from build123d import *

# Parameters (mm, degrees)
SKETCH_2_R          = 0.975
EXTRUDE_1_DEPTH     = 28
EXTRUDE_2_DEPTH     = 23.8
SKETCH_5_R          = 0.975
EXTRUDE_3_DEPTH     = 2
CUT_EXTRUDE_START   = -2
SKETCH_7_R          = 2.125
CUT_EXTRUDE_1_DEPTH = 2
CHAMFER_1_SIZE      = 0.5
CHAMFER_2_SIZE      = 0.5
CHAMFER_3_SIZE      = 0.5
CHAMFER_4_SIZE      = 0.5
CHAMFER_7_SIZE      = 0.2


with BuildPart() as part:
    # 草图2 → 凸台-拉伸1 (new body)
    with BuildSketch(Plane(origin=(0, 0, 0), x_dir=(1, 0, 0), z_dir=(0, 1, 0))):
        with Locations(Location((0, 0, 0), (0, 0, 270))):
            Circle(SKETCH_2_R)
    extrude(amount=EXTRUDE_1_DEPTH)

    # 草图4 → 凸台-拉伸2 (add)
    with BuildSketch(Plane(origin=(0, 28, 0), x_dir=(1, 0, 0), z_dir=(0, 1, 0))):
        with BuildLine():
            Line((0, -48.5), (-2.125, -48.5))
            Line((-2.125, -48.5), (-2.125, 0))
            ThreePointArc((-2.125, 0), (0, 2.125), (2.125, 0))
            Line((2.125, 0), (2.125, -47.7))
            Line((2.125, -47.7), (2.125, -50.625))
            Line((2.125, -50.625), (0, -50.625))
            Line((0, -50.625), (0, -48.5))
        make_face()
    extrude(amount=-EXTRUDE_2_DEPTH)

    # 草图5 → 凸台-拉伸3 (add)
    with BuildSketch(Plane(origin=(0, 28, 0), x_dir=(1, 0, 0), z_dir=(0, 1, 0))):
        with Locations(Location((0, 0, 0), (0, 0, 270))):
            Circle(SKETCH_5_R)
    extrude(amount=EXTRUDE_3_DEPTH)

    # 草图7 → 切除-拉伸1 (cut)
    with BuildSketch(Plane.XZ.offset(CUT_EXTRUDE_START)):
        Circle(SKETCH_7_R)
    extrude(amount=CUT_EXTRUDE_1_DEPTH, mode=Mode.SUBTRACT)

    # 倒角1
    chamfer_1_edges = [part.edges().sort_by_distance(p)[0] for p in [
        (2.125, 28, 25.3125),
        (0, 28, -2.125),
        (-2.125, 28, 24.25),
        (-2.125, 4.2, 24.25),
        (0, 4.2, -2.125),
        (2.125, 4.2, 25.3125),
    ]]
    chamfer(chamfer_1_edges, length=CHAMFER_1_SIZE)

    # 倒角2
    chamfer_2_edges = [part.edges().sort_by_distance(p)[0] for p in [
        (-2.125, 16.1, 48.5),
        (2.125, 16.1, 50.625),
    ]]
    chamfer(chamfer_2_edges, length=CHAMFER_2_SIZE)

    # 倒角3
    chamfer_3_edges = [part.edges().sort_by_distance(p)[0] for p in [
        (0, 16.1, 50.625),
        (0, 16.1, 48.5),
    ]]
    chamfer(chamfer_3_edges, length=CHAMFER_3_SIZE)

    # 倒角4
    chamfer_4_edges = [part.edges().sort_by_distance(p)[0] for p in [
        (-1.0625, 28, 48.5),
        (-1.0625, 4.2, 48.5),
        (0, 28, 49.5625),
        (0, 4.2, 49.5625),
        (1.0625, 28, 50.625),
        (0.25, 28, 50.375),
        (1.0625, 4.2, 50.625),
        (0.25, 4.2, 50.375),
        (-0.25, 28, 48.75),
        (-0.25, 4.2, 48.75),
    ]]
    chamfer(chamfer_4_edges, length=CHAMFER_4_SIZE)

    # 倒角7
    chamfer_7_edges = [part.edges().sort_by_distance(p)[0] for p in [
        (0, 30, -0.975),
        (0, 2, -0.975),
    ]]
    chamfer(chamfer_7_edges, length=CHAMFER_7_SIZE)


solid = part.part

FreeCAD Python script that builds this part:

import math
import FreeCAD as App
import Part
import Sketcher
Q = App.Units.Quantity


def edges_at(feature, points):
    """Names of the edges that pass closest to the given points."""
    edges = feature.Shape.Edges
    near = lambda p: min(range(len(edges)), key=lambda i: edges[i].distToShape(Part.Vertex(*p))[0])
    return sorted({f"Edge{near(p) + 1}" for p in points})

doc = App.newDocument("Part")
params = doc.addObject("Spreadsheet::Sheet", "Params")
for row, (alias, value) in enumerate([
    ("sketch1_diameter", "1.95 mm"),
    ("pad1_length", "28 mm"),
    ("sketch2_height", "48.5 mm"),
    ("pad2_length", "23.8 mm"),
    ("sketch3_diameter", "1.95 mm"),
    ("pad3_length", "2 mm"),
    ("sketch4_diameter", "4.25 mm"),
    ("pocket1_length", "2 mm"),
    ("chamfer_size", "0.5 mm"),
    ("chamfer2_size", "0.5 mm"),
    ("chamfer3_size", "0.5 mm"),
    ("chamfer4_size", "0.5 mm"),
    ("chamfer5_size", "0.2 mm"),
], start=1):
    params.set(f"A{row}", alias)
    params.set(f"B{row}", "=" + value)
    params.setAlias(f"B{row}", alias)

body = doc.addObject("PartDesign::Body", "Body")

# Sketch on XZ plane
sketch1 = body.newObject("Sketcher::SketchObject", "Sketch")
sketch1.AttachmentSupport = (doc.getObject("XZ_Plane"), [""])
sketch1.MapMode = "FlatFace"
sketch1.addGeometry(Part.Circle(App.Vector(0, 0, 0), App.Vector(0, 0, 1), 1), False)
sketch1.addConstraint([
    Sketcher.Constraint("Coincident", 0, 3, -1, 1),
    Sketcher.Constraint("Diameter", 0, Q("1.95 mm")),
])
sketch1.setExpression("Constraints[1]", "Params.sketch1_diameter")
pad1 = body.newObject("PartDesign::Pad", "Pad")
pad1.Profile = sketch1
pad1.setExpression("Length", "Params.pad1_length")
pad1.Reversed = True

# Sketch on XZ plane
sketch2 = body.newObject("Sketcher::SketchObject", "Sketch001")
sketch2.AttachmentSupport = (doc.getObject("XZ_Plane"), [""])
sketch2.MapMode = "FlatFace"
sketch2.AttachmentOffset = App.Placement(App.Vector(0, 0, -28), App.Rotation())
sketch2.addGeometry([
    Part.LineSegment(App.Vector(-2.1, 48.5, 0), App.Vector(0, 48.5, 0)),  # 0
    Part.LineSegment(App.Vector(0, 48.5, 0), App.Vector(0, 50.6, 0)),  # 1
    Part.LineSegment(App.Vector(0, 50.6, 0), App.Vector(2.1, 50.6, 0)),  # 2
    Part.LineSegment(App.Vector(2.1, 50.6, 0), App.Vector(2.1, 0, 0)),  # 3
    Part.ArcOfCircle(Part.Circle(App.Vector(0, 0, 0), App.Vector(0, 0, 1), 2.1), math.radians(180), math.radians(360)),  # 4
    Part.LineSegment(App.Vector(-2.1, 0, 0), App.Vector(-2.1, 48.5, 0)),  # 5
], False)
sketch2.addConstraint([
    Sketcher.Constraint("Coincident", 0, 2, 1, 1),
    Sketcher.Constraint("Coincident", 1, 2, 2, 1),
    Sketcher.Constraint("Coincident", 2, 2, 3, 1),
    Sketcher.Constraint("Tangent", 3, 2, 4, 2),
    Sketcher.Constraint("Tangent", 4, 1, 5, 1),
    Sketcher.Constraint("Coincident", 5, 2, 0, 1),
    Sketcher.Constraint("Horizontal", 0),
    Sketcher.Constraint("Vertical", 1),
    Sketcher.Constraint("Horizontal", 2),
    Sketcher.Constraint("Vertical", 3),
    Sketcher.Constraint("Vertical", 5),
    Sketcher.Constraint("Coincident", 4, 3, -1, 1),
    Sketcher.Constraint("PointOnObject", 0, 2, -2),
    Sketcher.Constraint("Equal", 2, 1),
    Sketcher.Constraint("DistanceY", 5, 1, 5, 2, Q("48.5 mm")),
    Sketcher.Constraint("Radius", 4, Q("2.125 mm")),
])
sketch2.setExpression("Constraints[14]", "Params.sketch2_height")
pad2 = body.newObject("PartDesign::Pad", "Pad001")
pad2.Profile = sketch2
pad2.setExpression("Length", "Params.pad2_length")

# Sketch on XZ plane
sketch3 = body.newObject("Sketcher::SketchObject", "Sketch002")
sketch3.AttachmentSupport = (doc.getObject("XZ_Plane"), [""])
sketch3.MapMode = "FlatFace"
sketch3.AttachmentOffset = App.Placement(App.Vector(0, 0, -28), App.Rotation())
sketch3.addGeometry(Part.Circle(App.Vector(0, 0, 0), App.Vector(0, 0, 1), 1), False)
sketch3.addConstraint([
    Sketcher.Constraint("Coincident", 0, 3, -1, 1),
    Sketcher.Constraint("Diameter", 0, Q("1.95 mm")),
])
sketch3.setExpression("Constraints[1]", "Params.sketch3_diameter")
pad3 = body.newObject("PartDesign::Pad", "Pad002")
pad3.Profile = sketch3
pad3.setExpression("Length", "Params.pad3_length")
pad3.Reversed = True

# Sketch on XZ plane
sketch4 = body.newObject("Sketcher::SketchObject", "Sketch003")
sketch4.AttachmentSupport = (doc.getObject("XZ_Plane"), [""])
sketch4.MapMode = "FlatFace"
sketch4.AttachmentOffset = App.Placement(App.Vector(0, 0, -2), App.Rotation())
sketch4.addGeometry(Part.Circle(App.Vector(0, 0, 0), App.Vector(0, 0, 1), 2.1), False)
sketch4.addConstraint([
    Sketcher.Constraint("Coincident", 0, 3, -1, 1),
    Sketcher.Constraint("Diameter", 0, Q("4.25 mm")),
])
sketch4.setExpression("Constraints[1]", "Params.sketch4_diameter")
pocket1 = body.newObject("PartDesign::Pocket", "Pocket")
pocket1.Profile = sketch4
pocket1.setExpression("Length", "Params.pocket1_length")
pocket1.Reversed = True
doc.recompute()

chamfer = body.newObject("PartDesign::Chamfer", "Chamfer")
chamfer.Base = (pocket1, edges_at(pocket1, [
    (2.125, 28, 25.312),
    (0, 28, -2.125),
    (-2.125, 28, 24.25),
    (-2.125, 4.2, 24.25),
    (0, 4.2, -2.125),
    (2.125, 4.2, 25.312),
]))
chamfer.setExpression("Size", "Params.chamfer_size")
doc.recompute()

chamfer2 = body.newObject("PartDesign::Chamfer", "Chamfer001")
chamfer2.Base = (chamfer, edges_at(chamfer, [(-2.125, 16.1, 48.5), (2.125, 16.1, 50.625)]))
chamfer2.setExpression("Size", "Params.chamfer2_size")
doc.recompute()

chamfer3 = body.newObject("PartDesign::Chamfer", "Chamfer002")
chamfer3.Base = (chamfer2, edges_at(chamfer2, [(0, 16.1, 50.625), (0, 16.1, 48.5)]))
chamfer3.setExpression("Size", "Params.chamfer3_size")
doc.recompute()

chamfer4 = body.newObject("PartDesign::Chamfer", "Chamfer003")
chamfer4.Base = (chamfer3, edges_at(chamfer3, [
    (-1.062, 28, 48.5),
    (-1.062, 4.2, 48.5),
    (0, 28, 49.562),
    (0, 4.2, 49.562),
    (1.062, 28, 50.625),
    (0.25, 28, 50.375),
    (1.062, 4.2, 50.625),
    (0.25, 4.2, 50.375),
    (-0.25, 28, 48.75),
    (-0.25, 4.2, 48.75),
]))
chamfer4.setExpression("Size", "Params.chamfer4_size")
doc.recompute()

chamfer5 = body.newObject("PartDesign::Chamfer", "Chamfer004")
chamfer5.Base = (chamfer4, edges_at(chamfer4, [(0, 30, -0.975), (0, 2, -0.975)]))
chamfer5.setExpression("Size", "Params.chamfer5_size")

doc.recompute()
